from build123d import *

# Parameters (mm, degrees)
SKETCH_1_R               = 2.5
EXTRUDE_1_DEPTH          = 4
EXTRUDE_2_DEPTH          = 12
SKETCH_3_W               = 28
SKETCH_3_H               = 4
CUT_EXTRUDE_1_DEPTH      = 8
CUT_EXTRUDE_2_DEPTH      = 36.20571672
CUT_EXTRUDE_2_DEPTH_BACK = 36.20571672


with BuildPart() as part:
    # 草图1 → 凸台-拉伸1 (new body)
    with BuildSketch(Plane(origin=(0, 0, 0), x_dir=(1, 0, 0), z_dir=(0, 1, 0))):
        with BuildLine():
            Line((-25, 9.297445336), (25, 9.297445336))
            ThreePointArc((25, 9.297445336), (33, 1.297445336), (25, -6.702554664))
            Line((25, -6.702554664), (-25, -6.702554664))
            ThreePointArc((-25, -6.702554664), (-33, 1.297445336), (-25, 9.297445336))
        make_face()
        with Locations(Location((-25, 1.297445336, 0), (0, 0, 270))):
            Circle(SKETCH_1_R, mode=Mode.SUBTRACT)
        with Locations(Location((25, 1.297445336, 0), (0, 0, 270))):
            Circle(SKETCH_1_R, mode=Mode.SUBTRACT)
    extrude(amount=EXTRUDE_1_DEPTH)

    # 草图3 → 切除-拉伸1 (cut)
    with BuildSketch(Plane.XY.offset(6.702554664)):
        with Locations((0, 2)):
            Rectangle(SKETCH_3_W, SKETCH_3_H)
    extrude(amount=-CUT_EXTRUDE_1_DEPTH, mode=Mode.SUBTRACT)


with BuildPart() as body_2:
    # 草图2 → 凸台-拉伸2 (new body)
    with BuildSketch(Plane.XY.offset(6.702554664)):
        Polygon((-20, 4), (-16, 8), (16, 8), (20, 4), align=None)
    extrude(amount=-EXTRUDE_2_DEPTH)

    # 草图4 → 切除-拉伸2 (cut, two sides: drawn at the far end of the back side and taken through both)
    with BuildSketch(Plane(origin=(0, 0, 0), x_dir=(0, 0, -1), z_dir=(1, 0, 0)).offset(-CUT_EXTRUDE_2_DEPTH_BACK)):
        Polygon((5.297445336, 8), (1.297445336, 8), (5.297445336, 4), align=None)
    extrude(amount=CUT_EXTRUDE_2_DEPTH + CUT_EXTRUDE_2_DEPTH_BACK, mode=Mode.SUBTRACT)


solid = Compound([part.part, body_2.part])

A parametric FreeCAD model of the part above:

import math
import FreeCAD as App
import Part
import Sketcher
Q = App.Units.Quantity


def add_polygon(sketch, points):
    """Adds a closed chain of lines whose ends are joined by coincident constraints."""
    first, n = sketch.GeometryCount, len(points)
    for a, b in zip(points, points[1:] + points[:1]):
        sketch.addGeometry(Part.LineSegment(App.Vector(*a, 0), App.Vector(*b, 0)), False)
    for i in range(n):
        sketch.addConstraint(Sketcher.Constraint("Coincident", first + i, 2, first + (i + 1) % n, 1))

doc = App.newDocument("Part")
params = doc.addObject("Spreadsheet::Sheet", "Params")
for row, (alias, value) in enumerate([
    ("sketch1_diameter", "5 mm"),
    ("sketch1_radius", "8 mm"),
    ("sketch1_width", "50 mm"),
    ("pad1_length", "4 mm"),
    ("sketch2_width", "28 mm"),
    ("sketch2_height", "4 mm"),
    ("pocket1_length", "8 mm"),
    ("sketch3_width", "40 mm"),
    ("sketch3_width2", "32 mm"),
    ("pad2_length", "12 mm"),
    ("sketch4_width", "4 mm"),
], start=1):
    params.set(f"A{row}", alias)
    params.set(f"B{row}", "=" + value)
    params.setAlias(f"B{row}", alias)

body = doc.addObject("PartDesign::Body", "Body")

# Sketch on XZ plane
sketch1 = doc.addObject("Sketcher::SketchObject", "Sketch")
body.addObject(sketch1)
sketch1.AttachmentSupport = (doc.XZ_Plane, [""])
sketch1.MapMode = "FlatFace"
sketch1.addGeometry([
    Part.LineSegment(App.Vector(25, -9.3, 0), App.Vector(-25, -9.3, 0)),  # 0
    Part.ArcOfCircle(Part.Circle(App.Vector(-25, -1.3, 0), App.Vector(0, 0, 1), 8), math.radians(90), math.radians(270)),  # 1
    Part.LineSegment(App.Vector(-25, 6.7, 0), App.Vector(25, 6.7, 0)),  # 2
    Part.ArcOfCircle(Part.Circle(App.Vector(25, -1.3, 0), App.Vector(0, 0, 1), 8), math.radians(-90), math.radians(90)),  # 3
    Part.Circle(App.Vector(25, -1.3, 0), App.Vector(0, 0, 1), 2.5),  # 4
    Part.Circle(App.Vector(-25, -1.3, 0), App.Vector(0, 0, 1), 2.5),  # 5
], False)
sketch1.addConstraint([
    Sketcher.Constraint("Tangent", 0, 2, 1, 2),
    Sketcher.Constraint("Tangent", 1, 1, 2, 1),
    Sketcher.Constraint("Tangent", 2, 2, 3, 2),
    Sketcher.Constraint("Tangent", 3, 1, 0, 1),
    Sketcher.Constraint("Horizontal", 0),
    Sketcher.Constraint("Horizontal", 2),
    Sketcher.Constraint("Coincident", 4, 3, 3, 3),
    Sketcher.Constraint("Coincident", 5, 3, 1, 3),
    Sketcher.Constraint("Equal", 4, 5),
    Sketcher.Constraint("Diameter", 4, Q("5 mm")),
    Sketcher.Constraint("Radius", 1, Q("8 mm")),
    Sketcher.Constraint("DistanceX", 0, 2, 0, 1, Q("50 mm")),
    Sketcher.Constraint("DistanceX", 1, 3, -1, 1, Q("25 mm")),
    Sketcher.Constraint("DistanceY", 1, 3, -1, 1, Q("1.297445 mm")),
])
sketch1.setExpression("Constraints[9]", "Params.sketch1_diameter")
sketch1.setExpression("Constraints[10]", "Params.sketch1_radius")
sketch1.setExpression("Constraints[11]", "Params.sketch1_width")
pad1 = doc.addObject("PartDesign::Pad", "Pad")
body.addObject(pad1)
pad1.Profile = sketch1
pad1.setExpression("Length", "Params.pad1_length")
pad1.Reversed = True

# Sketch on XY plane
sketch2 = doc.addObject("Sketcher::SketchObject", "Sketch001")
body.addObject(sketch2)
sketch2.AttachmentSupport = (doc.XY_Plane, [""])
sketch2.MapMode = "FlatFace"
sketch2.AttachmentOffset = App.Placement(App.Vector(0, 0, 6.702555), App.Rotation())
add_polygon(sketch2, [(-14, 4), (-14, 0), (14, 0), (14, 4)])  # lines 0-3
sketch2.addConstraint([
    Sketcher.Constraint("Vertical", 0),
    Sketcher.Constraint("Horizontal", 1),
    Sketcher.Constraint("Vertical", 2),
    Sketcher.Constraint("Horizontal", 3),
    Sketcher.Constraint("Symmetric", 0, 2, 1, 2, -1, 1),
    Sketcher.Constraint("DistanceX", 1, 1, 1, 2, Q("28 mm")),
    Sketcher.Constraint("DistanceY", 0, 2, 0, 1, Q("4 mm")),
])
sketch2.setExpression("Constraints[9]", "Params.sketch2_width")
sketch2.setExpression("Constraints[10]", "Params.sketch2_height")
pocket1 = doc.addObject("PartDesign::Pocket", "Pocket")
body.addObject(pocket1)
pocket1.Profile = sketch2
pocket1.setExpression("Length", "Params.pocket1_length")
body2 = doc.addObject("PartDesign::Body", "Body001")

# Sketch on XY plane
sketch3 = doc.addObject("Sketcher::SketchObject", "Sketch002")
body2.addObject(sketch3)
sketch3.AttachmentSupport = (doc.getObject("XY_Plane001"), [""])
sketch3.MapMode = "FlatFace"
sketch3.AttachmentOffset = App.Placement(App.Vector(0, 0, 6.702555), App.Rotation())
add_polygon(sketch3, [(-16, 8), (-20, 4), (20, 4), (16, 8)])  # lines 0-3
sketch3.addConstraint([
    Sketcher.Constraint("Horizontal", 1),
    Sketcher.Constraint("Horizontal", 3),
    Sketcher.Constraint("Perpendicular", 0, 2),
    Sketcher.Constraint("Equal", 0, 2),
    Sketcher.Constraint("DistanceX", 1, 1, 1, 2, Q("40 mm")),
    Sketcher.Constraint("DistanceX", 3, 2, 3, 1, Q("32 mm")),
    Sketcher.Constraint("DistanceX", 0, 2, -1, 1, Q("20 mm")),
    Sketcher.Constraint("DistanceY", -1, 1, 0, 2, Q("4 mm")),
])
sketch3.setExpression("Constraints[8]", "Params.sketch3_width")
sketch3.setExpression("Constraints[9]", "Params.sketch3_width2")
pad2 = doc.addObject("PartDesign::Pad", "Pad001")
body2.addObject(pad2)
pad2.Profile = sketch3
pad2.setExpression("Length", "Params.pad2_length")
pad2.Reversed = True

# Sketch on YZ plane
sketch4 = doc.addObject("Sketcher::SketchObject", "Sketch003")
body2.addObject(sketch4)
sketch4.AttachmentSupport = (doc.getObject("YZ_Plane001"), [""])
sketch4.MapMode = "FlatFace"
add_polygon(sketch4, [(8, -5.3), (8, -1.3), (4, -5.3)])  # lines 0-2
sketch4.addConstraint([
    Sketcher.Constraint("Vertical", 0),
    Sketcher.Constraint("Horizontal", 2),
    Sketcher.Constraint("Equal", 2, 0),
    Sketcher.Constraint("DistanceX", 2, 1, 2, 2, Q("4 mm")),
    Sketcher.Constraint("DistanceX", -1, 1, 0, 2, Q("8 mm")),
    Sketcher.Constraint("DistanceY", 0, 2, -1, 1, Q("1.297445 mm")),
])
sketch4.setExpression("Constraints[6]", "Params.sketch4_width")
pocket2 = doc.addObject("PartDesign::Pocket", "Pocket001")
body2.addObject(pocket2)
pocket2.Profile = sketch4
pocket2.Type = "ThroughAll"
pocket2.Midplane = True

doc.recompute()
